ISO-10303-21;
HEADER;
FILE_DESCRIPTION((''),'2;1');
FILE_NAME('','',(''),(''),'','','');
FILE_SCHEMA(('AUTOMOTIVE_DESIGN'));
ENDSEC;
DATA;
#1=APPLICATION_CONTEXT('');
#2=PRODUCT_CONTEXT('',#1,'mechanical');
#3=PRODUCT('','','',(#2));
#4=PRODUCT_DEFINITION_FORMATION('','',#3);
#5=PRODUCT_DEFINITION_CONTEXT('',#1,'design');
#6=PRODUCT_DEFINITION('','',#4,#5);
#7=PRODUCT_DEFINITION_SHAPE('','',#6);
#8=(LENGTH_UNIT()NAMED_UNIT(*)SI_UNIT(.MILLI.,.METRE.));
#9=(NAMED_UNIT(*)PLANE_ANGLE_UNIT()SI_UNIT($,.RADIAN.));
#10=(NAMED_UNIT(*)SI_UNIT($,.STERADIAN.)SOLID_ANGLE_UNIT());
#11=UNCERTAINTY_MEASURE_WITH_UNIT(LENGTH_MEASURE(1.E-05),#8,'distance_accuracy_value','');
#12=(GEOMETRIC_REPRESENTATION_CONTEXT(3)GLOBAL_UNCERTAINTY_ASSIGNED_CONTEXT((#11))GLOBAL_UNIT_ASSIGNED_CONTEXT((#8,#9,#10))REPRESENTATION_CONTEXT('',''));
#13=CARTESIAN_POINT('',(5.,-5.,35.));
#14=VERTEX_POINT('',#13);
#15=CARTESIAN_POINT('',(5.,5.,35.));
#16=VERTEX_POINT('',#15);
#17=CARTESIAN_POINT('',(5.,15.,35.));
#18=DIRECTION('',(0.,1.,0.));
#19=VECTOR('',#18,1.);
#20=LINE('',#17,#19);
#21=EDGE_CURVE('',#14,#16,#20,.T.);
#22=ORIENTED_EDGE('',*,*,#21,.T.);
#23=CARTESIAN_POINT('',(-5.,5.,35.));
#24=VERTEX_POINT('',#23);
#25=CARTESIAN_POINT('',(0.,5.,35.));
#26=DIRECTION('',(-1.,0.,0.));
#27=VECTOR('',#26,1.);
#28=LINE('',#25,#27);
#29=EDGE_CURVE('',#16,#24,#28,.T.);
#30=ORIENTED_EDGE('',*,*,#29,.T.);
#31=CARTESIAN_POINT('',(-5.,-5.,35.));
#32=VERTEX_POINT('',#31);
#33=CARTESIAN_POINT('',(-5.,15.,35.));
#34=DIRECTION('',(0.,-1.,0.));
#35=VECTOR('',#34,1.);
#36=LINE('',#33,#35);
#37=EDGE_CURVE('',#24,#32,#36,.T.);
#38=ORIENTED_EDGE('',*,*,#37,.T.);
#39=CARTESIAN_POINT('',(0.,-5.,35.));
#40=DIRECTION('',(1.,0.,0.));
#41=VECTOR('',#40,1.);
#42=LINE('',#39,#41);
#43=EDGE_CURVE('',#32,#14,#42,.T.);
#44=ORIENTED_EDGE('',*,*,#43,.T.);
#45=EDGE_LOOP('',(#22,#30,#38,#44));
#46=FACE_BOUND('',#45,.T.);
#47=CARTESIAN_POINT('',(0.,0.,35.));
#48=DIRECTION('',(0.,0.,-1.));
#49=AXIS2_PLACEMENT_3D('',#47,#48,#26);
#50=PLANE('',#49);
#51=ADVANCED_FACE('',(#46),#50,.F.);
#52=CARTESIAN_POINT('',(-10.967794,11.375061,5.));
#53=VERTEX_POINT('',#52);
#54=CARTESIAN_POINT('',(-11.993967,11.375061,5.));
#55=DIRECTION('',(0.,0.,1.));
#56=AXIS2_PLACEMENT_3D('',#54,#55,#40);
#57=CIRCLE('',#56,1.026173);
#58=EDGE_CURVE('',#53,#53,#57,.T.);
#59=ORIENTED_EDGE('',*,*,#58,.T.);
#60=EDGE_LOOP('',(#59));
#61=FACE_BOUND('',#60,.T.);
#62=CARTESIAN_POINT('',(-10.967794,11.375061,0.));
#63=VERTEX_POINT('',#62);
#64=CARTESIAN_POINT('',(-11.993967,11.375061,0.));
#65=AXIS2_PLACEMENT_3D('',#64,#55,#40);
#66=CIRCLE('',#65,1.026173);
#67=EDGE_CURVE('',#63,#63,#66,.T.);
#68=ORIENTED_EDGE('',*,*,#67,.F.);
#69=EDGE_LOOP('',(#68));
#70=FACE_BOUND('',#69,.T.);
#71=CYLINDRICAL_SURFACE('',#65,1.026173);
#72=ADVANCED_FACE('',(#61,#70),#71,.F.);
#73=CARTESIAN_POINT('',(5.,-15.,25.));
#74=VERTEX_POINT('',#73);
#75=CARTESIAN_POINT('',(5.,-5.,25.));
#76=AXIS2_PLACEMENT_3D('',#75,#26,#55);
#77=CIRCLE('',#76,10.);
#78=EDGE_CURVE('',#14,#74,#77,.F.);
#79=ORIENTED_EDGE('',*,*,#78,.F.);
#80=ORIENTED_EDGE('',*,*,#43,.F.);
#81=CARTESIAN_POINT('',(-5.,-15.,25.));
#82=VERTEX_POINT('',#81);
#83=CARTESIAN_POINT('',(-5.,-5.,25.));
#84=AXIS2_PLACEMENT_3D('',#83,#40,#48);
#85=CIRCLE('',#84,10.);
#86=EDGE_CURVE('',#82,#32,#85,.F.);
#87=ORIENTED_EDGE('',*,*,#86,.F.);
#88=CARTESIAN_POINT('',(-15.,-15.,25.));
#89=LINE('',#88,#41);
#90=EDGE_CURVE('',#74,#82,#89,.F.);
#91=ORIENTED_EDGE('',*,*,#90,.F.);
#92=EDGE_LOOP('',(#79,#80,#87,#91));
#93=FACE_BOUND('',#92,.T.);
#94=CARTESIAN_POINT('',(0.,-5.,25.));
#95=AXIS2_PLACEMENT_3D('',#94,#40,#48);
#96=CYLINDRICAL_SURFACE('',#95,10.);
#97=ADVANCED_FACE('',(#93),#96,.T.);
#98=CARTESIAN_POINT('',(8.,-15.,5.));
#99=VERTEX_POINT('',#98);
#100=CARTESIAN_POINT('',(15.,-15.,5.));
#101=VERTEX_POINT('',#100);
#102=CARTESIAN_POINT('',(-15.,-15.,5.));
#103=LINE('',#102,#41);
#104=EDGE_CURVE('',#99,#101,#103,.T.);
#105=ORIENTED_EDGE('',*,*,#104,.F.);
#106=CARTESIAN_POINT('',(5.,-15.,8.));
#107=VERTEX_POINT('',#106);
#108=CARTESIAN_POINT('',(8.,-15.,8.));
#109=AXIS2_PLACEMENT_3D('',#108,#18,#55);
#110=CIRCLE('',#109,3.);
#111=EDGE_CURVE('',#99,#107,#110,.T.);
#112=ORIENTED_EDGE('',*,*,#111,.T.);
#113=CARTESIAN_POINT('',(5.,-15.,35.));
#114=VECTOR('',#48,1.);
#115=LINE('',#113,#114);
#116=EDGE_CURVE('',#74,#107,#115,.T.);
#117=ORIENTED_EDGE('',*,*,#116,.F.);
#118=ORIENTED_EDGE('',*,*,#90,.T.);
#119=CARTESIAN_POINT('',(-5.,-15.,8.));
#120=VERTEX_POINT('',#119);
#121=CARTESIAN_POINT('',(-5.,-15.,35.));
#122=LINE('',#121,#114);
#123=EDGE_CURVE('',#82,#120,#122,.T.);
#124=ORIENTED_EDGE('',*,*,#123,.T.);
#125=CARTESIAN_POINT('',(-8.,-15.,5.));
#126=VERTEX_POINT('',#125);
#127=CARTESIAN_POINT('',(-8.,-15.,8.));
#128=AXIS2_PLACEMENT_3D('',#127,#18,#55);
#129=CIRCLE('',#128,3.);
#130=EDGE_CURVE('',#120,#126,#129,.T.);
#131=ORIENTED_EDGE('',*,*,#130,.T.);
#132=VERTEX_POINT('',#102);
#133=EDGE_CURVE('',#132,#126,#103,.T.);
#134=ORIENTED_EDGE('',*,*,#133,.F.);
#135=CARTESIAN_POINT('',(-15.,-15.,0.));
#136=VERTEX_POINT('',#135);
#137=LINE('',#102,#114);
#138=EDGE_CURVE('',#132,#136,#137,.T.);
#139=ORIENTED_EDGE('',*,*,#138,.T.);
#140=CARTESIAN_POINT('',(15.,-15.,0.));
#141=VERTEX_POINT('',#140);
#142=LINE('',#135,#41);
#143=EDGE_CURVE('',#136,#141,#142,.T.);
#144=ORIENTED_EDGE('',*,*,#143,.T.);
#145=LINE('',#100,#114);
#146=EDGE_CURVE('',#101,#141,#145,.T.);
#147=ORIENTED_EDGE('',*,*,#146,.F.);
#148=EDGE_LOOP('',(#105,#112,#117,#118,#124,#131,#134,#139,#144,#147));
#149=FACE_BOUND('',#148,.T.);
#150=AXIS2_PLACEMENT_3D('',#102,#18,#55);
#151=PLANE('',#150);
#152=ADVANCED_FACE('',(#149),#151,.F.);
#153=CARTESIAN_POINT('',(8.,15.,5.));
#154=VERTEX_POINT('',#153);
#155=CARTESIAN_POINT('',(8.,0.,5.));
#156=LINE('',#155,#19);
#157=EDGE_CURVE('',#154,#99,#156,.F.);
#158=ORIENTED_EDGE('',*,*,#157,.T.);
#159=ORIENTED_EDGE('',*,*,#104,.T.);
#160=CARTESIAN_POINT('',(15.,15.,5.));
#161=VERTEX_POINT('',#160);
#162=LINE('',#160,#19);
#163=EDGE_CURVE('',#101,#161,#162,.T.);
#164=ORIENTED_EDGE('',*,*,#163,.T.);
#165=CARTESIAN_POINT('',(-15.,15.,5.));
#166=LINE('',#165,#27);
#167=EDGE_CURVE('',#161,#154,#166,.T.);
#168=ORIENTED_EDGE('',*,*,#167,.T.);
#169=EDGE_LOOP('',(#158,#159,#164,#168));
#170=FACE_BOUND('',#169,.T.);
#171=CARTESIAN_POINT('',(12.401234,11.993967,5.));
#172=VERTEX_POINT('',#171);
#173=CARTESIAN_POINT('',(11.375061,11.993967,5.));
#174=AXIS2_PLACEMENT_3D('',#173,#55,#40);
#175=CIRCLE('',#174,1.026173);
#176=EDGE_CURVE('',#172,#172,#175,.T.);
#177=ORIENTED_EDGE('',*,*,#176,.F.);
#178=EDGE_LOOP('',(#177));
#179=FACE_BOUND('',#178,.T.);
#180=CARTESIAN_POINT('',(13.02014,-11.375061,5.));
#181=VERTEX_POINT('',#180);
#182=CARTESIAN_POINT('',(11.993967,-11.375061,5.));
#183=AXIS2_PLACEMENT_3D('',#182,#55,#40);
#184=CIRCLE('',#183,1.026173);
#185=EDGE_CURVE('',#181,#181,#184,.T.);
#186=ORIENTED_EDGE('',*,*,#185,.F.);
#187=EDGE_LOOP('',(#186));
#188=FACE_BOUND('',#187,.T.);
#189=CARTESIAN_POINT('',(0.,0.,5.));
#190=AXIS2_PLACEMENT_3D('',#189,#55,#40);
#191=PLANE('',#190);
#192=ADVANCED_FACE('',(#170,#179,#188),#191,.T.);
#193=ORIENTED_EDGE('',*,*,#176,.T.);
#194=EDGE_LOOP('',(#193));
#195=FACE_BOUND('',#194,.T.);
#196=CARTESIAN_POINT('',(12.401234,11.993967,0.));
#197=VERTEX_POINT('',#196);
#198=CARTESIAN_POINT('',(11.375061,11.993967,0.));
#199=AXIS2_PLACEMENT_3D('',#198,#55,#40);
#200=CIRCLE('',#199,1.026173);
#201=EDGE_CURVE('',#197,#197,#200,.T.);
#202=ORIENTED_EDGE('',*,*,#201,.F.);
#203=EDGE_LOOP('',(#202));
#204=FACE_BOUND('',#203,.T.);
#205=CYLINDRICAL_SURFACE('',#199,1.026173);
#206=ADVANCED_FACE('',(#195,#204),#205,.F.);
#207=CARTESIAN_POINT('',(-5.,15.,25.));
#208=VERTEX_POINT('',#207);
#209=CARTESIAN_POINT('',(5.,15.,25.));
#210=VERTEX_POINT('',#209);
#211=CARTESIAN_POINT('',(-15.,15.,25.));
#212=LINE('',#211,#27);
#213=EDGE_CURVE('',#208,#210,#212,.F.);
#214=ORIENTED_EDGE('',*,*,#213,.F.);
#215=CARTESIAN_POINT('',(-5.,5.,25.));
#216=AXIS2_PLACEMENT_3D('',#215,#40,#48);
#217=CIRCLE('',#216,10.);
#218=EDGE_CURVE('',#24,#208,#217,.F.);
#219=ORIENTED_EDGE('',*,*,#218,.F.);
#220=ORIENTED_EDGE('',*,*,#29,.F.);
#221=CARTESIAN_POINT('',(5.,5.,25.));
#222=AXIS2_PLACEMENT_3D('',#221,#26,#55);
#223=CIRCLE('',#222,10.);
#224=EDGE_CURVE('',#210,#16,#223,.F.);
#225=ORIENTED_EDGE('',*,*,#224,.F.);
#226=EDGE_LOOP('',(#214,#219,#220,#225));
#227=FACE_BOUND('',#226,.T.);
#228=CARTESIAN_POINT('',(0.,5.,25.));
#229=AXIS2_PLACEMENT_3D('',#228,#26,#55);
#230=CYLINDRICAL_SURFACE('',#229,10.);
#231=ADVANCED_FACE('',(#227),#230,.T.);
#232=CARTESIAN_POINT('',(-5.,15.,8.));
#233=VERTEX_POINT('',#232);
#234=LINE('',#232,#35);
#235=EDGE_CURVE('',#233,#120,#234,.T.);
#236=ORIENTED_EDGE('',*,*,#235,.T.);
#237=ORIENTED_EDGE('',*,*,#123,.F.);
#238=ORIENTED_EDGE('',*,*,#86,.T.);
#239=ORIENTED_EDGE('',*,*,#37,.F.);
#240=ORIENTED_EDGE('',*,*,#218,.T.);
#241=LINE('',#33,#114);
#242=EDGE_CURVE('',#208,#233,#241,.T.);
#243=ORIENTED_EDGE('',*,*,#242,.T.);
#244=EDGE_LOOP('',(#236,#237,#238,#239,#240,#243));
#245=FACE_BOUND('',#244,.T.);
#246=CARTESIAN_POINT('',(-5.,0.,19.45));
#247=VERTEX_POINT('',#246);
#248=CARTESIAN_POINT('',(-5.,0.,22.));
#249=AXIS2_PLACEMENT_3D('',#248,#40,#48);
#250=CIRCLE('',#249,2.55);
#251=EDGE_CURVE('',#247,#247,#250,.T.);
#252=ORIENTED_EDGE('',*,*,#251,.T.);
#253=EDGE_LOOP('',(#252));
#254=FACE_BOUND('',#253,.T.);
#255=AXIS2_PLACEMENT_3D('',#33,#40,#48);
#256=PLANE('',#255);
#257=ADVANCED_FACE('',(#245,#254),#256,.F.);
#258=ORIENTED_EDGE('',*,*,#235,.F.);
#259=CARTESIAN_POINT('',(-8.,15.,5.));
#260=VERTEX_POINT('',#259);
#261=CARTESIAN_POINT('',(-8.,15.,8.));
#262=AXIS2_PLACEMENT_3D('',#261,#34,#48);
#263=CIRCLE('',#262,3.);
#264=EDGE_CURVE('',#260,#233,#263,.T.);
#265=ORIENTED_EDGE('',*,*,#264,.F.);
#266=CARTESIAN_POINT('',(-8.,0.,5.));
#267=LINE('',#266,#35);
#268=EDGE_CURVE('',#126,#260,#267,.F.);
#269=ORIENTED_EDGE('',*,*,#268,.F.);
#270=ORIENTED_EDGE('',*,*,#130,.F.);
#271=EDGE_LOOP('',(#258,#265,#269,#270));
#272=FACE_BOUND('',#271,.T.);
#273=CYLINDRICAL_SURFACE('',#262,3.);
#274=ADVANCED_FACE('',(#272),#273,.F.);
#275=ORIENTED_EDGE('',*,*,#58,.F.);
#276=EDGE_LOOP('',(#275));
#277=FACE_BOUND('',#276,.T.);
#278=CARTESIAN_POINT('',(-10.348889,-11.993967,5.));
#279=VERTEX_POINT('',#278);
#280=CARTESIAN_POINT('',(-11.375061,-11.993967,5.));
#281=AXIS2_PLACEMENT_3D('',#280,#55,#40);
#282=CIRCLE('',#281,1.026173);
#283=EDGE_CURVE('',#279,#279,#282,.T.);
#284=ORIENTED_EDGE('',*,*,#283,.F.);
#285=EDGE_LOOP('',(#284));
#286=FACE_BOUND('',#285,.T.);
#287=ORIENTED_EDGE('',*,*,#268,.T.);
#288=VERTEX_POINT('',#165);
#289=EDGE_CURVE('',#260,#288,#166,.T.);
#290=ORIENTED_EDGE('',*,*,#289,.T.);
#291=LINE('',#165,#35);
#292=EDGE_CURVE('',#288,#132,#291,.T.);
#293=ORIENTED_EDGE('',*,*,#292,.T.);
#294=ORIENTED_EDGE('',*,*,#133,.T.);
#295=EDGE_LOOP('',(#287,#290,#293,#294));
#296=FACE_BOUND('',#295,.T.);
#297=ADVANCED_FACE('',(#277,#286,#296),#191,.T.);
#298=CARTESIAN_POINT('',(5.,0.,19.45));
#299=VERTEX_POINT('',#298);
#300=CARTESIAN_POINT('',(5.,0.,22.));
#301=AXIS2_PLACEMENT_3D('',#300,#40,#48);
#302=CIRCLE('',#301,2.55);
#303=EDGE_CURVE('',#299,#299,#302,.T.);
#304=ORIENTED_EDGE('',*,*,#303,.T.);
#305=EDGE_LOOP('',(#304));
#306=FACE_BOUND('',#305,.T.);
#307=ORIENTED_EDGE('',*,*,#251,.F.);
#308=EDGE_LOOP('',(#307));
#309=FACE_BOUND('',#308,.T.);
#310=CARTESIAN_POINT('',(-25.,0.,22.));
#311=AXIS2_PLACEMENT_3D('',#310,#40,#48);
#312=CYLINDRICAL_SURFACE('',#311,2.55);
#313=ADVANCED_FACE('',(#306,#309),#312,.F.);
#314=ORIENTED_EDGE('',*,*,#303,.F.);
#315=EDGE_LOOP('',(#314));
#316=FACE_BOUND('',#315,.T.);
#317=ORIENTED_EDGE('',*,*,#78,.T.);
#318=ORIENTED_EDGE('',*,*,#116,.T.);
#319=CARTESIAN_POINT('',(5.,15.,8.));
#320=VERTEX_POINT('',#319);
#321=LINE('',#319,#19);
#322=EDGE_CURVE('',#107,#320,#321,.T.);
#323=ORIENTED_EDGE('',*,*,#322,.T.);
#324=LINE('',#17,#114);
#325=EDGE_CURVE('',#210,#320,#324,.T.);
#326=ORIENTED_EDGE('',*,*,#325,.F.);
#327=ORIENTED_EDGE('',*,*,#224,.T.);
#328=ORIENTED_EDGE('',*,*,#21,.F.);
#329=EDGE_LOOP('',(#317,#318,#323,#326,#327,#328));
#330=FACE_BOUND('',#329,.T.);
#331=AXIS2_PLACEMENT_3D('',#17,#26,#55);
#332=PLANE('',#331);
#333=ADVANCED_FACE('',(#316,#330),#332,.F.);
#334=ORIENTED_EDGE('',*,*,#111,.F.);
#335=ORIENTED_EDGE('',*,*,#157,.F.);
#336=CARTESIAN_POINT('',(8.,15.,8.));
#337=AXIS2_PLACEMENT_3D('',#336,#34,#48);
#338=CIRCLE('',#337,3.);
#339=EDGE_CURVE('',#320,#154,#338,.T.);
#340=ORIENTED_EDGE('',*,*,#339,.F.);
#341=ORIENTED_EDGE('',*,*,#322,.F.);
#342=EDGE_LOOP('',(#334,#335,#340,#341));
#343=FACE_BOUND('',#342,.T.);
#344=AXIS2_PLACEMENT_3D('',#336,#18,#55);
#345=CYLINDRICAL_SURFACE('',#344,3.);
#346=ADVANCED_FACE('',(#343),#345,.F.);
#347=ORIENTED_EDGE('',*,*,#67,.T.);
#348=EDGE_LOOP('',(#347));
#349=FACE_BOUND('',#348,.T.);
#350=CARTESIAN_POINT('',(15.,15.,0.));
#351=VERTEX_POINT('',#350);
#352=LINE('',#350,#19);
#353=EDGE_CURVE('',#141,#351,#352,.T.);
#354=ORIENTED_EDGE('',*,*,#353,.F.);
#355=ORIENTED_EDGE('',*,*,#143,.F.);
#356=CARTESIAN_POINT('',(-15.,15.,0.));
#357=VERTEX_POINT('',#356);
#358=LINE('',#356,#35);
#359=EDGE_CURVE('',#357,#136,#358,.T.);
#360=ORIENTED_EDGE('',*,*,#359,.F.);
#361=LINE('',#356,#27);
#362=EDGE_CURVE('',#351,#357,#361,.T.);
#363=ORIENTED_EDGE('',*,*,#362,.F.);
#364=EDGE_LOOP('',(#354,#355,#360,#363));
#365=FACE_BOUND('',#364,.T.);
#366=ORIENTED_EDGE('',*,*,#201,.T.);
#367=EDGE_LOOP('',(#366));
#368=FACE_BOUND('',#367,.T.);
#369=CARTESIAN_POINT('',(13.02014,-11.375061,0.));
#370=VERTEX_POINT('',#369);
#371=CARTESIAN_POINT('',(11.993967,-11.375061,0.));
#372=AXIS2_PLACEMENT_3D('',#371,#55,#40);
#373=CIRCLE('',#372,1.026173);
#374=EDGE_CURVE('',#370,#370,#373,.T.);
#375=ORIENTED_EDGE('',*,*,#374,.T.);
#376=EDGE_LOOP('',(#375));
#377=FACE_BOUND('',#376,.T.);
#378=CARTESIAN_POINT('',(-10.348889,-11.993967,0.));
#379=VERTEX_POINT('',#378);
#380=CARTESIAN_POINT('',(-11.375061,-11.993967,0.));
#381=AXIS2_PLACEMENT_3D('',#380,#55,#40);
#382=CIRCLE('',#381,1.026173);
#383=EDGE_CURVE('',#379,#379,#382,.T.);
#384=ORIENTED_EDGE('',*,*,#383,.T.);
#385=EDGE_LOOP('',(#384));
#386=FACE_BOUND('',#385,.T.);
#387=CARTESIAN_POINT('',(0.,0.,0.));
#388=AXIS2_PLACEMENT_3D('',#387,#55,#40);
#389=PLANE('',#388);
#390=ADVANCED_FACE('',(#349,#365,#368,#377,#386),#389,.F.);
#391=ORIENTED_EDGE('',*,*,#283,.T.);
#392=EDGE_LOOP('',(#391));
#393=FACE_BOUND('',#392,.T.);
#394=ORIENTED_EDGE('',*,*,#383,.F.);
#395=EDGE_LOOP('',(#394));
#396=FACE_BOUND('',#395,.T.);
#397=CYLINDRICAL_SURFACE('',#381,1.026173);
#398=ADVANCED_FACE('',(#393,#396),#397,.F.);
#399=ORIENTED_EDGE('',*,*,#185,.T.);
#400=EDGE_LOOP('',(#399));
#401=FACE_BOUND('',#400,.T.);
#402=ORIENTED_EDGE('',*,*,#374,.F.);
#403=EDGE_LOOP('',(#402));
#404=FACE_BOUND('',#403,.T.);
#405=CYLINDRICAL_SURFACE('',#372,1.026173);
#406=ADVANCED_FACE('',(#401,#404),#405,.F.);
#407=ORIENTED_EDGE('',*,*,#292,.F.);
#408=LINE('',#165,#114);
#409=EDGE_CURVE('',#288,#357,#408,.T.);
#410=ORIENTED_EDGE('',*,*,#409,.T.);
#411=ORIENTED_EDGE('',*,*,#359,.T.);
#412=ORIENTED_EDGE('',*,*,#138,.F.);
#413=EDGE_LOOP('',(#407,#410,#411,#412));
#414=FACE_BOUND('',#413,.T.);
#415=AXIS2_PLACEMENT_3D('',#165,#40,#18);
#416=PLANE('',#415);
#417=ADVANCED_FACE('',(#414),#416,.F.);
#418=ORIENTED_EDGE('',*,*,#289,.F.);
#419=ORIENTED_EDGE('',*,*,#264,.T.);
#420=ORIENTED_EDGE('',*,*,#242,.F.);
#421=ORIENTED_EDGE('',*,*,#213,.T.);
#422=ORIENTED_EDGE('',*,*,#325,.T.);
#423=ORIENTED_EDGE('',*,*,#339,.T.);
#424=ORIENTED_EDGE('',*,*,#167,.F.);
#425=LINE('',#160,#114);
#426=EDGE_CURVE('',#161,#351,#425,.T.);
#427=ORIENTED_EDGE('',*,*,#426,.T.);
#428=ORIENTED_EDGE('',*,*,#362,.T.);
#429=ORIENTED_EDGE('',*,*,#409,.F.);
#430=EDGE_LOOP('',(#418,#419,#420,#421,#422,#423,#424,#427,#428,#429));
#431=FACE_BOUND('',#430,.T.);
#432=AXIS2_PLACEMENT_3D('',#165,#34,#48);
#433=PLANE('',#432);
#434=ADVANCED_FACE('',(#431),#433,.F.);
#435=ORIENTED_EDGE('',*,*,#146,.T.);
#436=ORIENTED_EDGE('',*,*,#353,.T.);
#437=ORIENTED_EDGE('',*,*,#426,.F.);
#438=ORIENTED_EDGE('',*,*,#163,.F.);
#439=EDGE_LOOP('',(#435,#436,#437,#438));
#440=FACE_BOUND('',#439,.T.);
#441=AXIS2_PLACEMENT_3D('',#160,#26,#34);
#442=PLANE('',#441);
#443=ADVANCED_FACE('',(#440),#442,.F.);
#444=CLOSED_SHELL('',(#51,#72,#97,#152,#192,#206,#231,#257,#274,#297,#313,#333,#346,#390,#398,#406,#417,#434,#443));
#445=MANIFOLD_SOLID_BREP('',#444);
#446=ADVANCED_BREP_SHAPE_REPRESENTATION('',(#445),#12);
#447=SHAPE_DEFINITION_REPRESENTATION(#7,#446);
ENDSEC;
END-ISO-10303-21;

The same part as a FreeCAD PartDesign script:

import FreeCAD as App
import Part
import Sketcher
from FreeCAD import Vector


def edges_at(feature, points):
    """Names of the edges that pass closest to the given points."""
    edges = feature.Shape.Edges
    near = lambda p: min(range(len(edges)), key=lambda i: edges[i].distToShape(Part.Vertex(*p))[0])
    return sorted({f"Edge{near(p) + 1}" for p in points})

doc = App.newDocument("Part")
body = doc.addObject("PartDesign::Body", "Body")

# Sketch on XY plane
sketch1 = doc.addObject("Sketcher::SketchObject", "Sketch")
body.addObject(sketch1)
sketch1.AttachmentSupport = (doc.XY_Plane, [""])
sketch1.MapMode = "FlatFace"
sketch1.addGeometry([
    Part.LineSegment(Vector(-15, 15, 0), Vector(-15, -15, 0)),
    Part.LineSegment(Vector(-15, -15, 0), Vector(15, -15, 0)),
    Part.LineSegment(Vector(15, -15, 0), Vector(15, 15, 0)),
    Part.LineSegment(Vector(15, 15, 0), Vector(-15, 15, 0)),
], False)
sketch1.addConstraint([
    Sketcher.Constraint("Coincident", 0, 2, 1, 1),
    Sketcher.Constraint("Coincident", 1, 2, 2, 1),
    Sketcher.Constraint("Coincident", 2, 2, 3, 1),
    Sketcher.Constraint("Coincident", 3, 2, 0, 1),
    Sketcher.Constraint("Vertical", 0),
    Sketcher.Constraint("Horizontal", 1),
    Sketcher.Constraint("Vertical", 2),
    Sketcher.Constraint("Horizontal", 3),
    Sketcher.Constraint("Symmetric", 0, 2, 2, 2, -1, 1),
    Sketcher.Constraint("Equal", 3, 0),
    Sketcher.Constraint("DistanceX", 1, 1, 1, 2, 30.0),
])
pad1 = doc.addObject("PartDesign::Pad", "Pad")
body.addObject(pad1)
pad1.Profile = sketch1
pad1.Length = 5

# Sketch on XY plane
sketch2 = doc.addObject("Sketcher::SketchObject", "Sketch001")
body.addObject(sketch2)
sketch2.AttachmentSupport = (doc.XY_Plane, [""])
sketch2.MapMode = "FlatFace"
sketch2.AttachmentOffset = App.Placement(Vector(0, 0, 5), App.Rotation())
sketch2.addGeometry([
    Part.Circle(Vector(-12, 11.4, 0), Vector(0, 0, 1), 1),
    Part.Circle(Vector(11.4, 12, 0), Vector(0, 0, 1), 1),
    Part.Circle(Vector(12, -11.4, 0), Vector(0, 0, 1), 1),
    Part.Circle(Vector(-11.4, -12, 0), Vector(0, 0, 1), 1),
], False)
sketch2.addConstraint([
    Sketcher.Constraint("Equal", 0, 1),
    Sketcher.Constraint("Equal", 1, 2),
    Sketcher.Constraint("Equal", 2, 3),
    Sketcher.Constraint("Symmetric", 0, 3, 2, 3, -1, 1),
    Sketcher.Constraint("Symmetric", 1, 3, 3, 3, -1, 1),
    Sketcher.Constraint("Diameter", 0, 2.052345),
    Sketcher.Constraint("DistanceY", -1, 1, 0, 3, 11.375061),
    Sketcher.Constraint("DistanceX", -1, 1, 1, 3, 11.375061),
    Sketcher.Constraint("DistanceX", 0, 3, 1, 3, 23.369028),
    Sketcher.Constraint("DistanceY", 2, 3, 1, 3, 23.369028),
])
pocket1 = doc.addObject("PartDesign::Pocket", "Pocket")
body.addObject(pocket1)
pocket1.Profile = sketch2
pocket1.Length = 5

# Sketch on XY plane
sketch3 = doc.addObject("Sketcher::SketchObject", "Sketch002")
body.addObject(sketch3)
sketch3.AttachmentSupport = (doc.XY_Plane, [""])
sketch3.MapMode = "FlatFace"
sketch3.AttachmentOffset = App.Placement(Vector(0, 0, 5), App.Rotation())
sketch3.addGeometry([
    Part.LineSegment(Vector(-5, 15, 0), Vector(-5, -15, 0)),
    Part.LineSegment(Vector(-5, -15, 0), Vector(5, -15, 0)),
    Part.LineSegment(Vector(5, -15, 0), Vector(5, 15, 0)),
    Part.LineSegment(Vector(5, 15, 0), Vector(-5, 15, 0)),
], False)
sketch3.addConstraint([
    Sketcher.Constraint("Coincident", 0, 2, 1, 1),
    Sketcher.Constraint("Coincident", 1, 2, 2, 1),
    Sketcher.Constraint("Coincident", 2, 2, 3, 1),
    Sketcher.Constraint("Coincident", 3, 2, 0, 1),
    Sketcher.Constraint("Vertical", 0),
    Sketcher.Constraint("Horizontal", 1),
    Sketcher.Constraint("Vertical", 2),
    Sketcher.Constraint("Horizontal", 3),
    Sketcher.Constraint("Symmetric", 0, 2, 2, 2, -1, 1),
    Sketcher.Constraint("DistanceX", 1, 1, 1, 2, 10.0),
    Sketcher.Constraint("DistanceY", 0, 2, 0, 1, 30.0),
])
pad2 = doc.addObject("PartDesign::Pad", "Pad001")
body.addObject(pad2)
pad2.Profile = sketch3
pad2.Length = 30

# Sketch on YZ plane
sketch4 = doc.addObject("Sketcher::SketchObject", "Sketch003")
body.addObject(sketch4)
sketch4.AttachmentSupport = (doc.YZ_Plane, [""])
sketch4.MapMode = "FlatFace"
sketch4.AttachmentOffset = App.Placement(Vector(0, 0, 5), App.Rotation())
sketch4.addGeometry(Part.Circle(Vector(0, 22, 0), Vector(0, 0, 1), 2.5), False)
sketch4.addConstraint([
    Sketcher.Constraint("PointOnObject", 0, 3, -2),
    Sketcher.Constraint("Diameter", 0, 5.1),
    Sketcher.Constraint("DistanceY", -1, 1, 0, 3, 22.0),
])
pocket2 = doc.addObject("PartDesign::Pocket", "Pocket001")
body.addObject(pocket2)
pocket2.Profile = sketch4
pocket2.Length = 30
doc.recompute()

fillet = doc.addObject("PartDesign::Fillet", "Fillet")
body.addObject(fillet)
fillet.Base = (pocket2, edges_at(pocket2, [(0, -15, 35)]))
fillet.Radius = 10
doc.recompute()

fillet2 = doc.addObject("PartDesign::Fillet", "Fillet001")
body.addObject(fillet2)
fillet2.Base = (fillet, edges_at(fillet, [(0, 15, 35)]))
fillet2.Radius = 10
doc.recompute()

fillet3 = doc.addObject("PartDesign::Fillet", "Fillet002")
body.addObject(fillet3)
fillet3.Base = (fillet2, edges_at(fillet2, [(5, 0, 5)]))
fillet3.Radius = 3
doc.recompute()

fillet4 = doc.addObject("PartDesign::Fillet", "Fillet003")
body.addObject(fillet4)
fillet4.Base = (fillet3, edges_at(fillet3, [(-5, 0, 5)]))
fillet4.Radius = 3

doc.recompute()
